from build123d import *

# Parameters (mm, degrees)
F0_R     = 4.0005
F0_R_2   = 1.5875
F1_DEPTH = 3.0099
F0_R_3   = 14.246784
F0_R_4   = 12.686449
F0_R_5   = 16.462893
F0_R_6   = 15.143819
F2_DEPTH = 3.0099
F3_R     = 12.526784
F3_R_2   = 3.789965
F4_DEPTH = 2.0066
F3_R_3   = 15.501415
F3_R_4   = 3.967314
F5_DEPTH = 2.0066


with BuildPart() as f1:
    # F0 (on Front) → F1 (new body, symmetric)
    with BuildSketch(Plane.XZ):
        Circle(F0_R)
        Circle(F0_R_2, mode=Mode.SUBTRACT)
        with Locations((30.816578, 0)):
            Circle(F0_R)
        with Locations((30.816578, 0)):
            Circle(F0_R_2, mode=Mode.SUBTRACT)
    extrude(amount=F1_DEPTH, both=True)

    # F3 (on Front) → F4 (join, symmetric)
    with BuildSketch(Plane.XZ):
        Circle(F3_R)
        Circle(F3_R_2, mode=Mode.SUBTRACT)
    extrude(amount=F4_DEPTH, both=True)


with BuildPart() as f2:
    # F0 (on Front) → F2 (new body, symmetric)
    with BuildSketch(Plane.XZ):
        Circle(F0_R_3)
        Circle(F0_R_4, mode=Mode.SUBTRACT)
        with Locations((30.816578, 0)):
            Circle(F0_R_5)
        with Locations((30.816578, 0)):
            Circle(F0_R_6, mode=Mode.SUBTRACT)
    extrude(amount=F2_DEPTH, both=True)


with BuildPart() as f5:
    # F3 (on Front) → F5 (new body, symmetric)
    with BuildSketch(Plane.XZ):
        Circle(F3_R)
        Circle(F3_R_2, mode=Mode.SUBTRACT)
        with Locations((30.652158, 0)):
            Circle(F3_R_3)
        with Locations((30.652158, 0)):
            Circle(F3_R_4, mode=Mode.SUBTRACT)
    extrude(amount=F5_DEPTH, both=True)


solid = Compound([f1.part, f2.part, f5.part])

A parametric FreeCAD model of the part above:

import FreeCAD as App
import Part
import Sketcher
from FreeCAD import Vector
Q = App.Units.Quantity

doc = App.newDocument("Part")
body = doc.addObject("PartDesign::Body", "Body")
body.AllowCompound = True

sketch1 = body.newObject("Sketcher::SketchObject", "Sketch")
sketch1.AttachmentSupport = (doc.getObject("XZ_Plane"), [""])
sketch1.MapMode = "FlatFace"
sketch1.addGeometry([
    Part.Circle(Vector(0, 0, 0), Vector(0, 0, 1), 4),
    Part.Circle(Vector(0, 0, 0), Vector(0, 0, 1), 1.6),
    Part.Circle(Vector(30.8, 0, 0), Vector(0, 0, 1), 4),
    Part.Circle(Vector(30.8, 0, 0), Vector(0, 0, 1), 1.6),
], False)
sketch1.addConstraint([
    Sketcher.Constraint("Coincident", 0, 3, -1, 1),
    Sketcher.Constraint("Coincident", 1, 3, -1, 1),
    Sketcher.Constraint("Coincident", 3, 3, 2, 3),
    Sketcher.Constraint("Equal", 0, 2),
    Sketcher.Constraint("Equal", 1, 3),
    Sketcher.Constraint("PointOnObject", 2, 3, -1),
    Sketcher.Constraint("Diameter", 0, Q("0.315 in")),
    Sketcher.Constraint("Diameter", 1, Q("0.125 in")),
    Sketcher.Constraint("DistanceX", -1, 1, 2, 3, 30.816578),
])
pad1 = body.newObject("PartDesign::Pad", "Pad")
pad1.Profile = sketch1
pad1.Length = Q("0.237 in")
pad1.Midplane = True

sketch2 = body.newObject("Sketcher::SketchObject", "Sketch001")
sketch2.AttachmentSupport = (doc.getObject("XZ_Plane"), [""])
sketch2.MapMode = "FlatFace"
sketch2.addGeometry([
    Part.Circle(Vector(0, 0, 0), Vector(0, 0, 1), 12.5),
    Part.Circle(Vector(0, 0, 0), Vector(0, 0, 1), 3.8),
], False)
sketch2.addConstraint([
    Sketcher.Constraint("Coincident", 0, 3, -1, 1),
    Sketcher.Constraint("Coincident", 1, 3, -1, 1),
    Sketcher.Constraint("Diameter", 1, 7.57993),
    Sketcher.Constraint("Diameter", 0, 25.053568),
])
pad2 = body.newObject("PartDesign::Pad", "Pad001")
pad2.Profile = sketch2
pad2.Length = Q("0.158 in")
pad2.Midplane = True
body2 = doc.addObject("PartDesign::Body", "Body001")
body2.AllowCompound = True

sketch3 = body2.newObject("Sketcher::SketchObject", "Sketch002")
sketch3.AttachmentSupport = (doc.getObject("XZ_Plane001"), [""])
sketch3.MapMode = "FlatFace"
sketch3.addGeometry([
    Part.Circle(Vector(0, 0, 0), Vector(0, 0, 1), 14),
    Part.Circle(Vector(0, 0, 0), Vector(0, 0, 1), 13),
    Part.Circle(Vector(31, 0, 0), Vector(0, 0, 1), 16),
    Part.Circle(Vector(31, 0, 0), Vector(0, 0, 1), 15),
], False)
sketch3.addConstraint([
    Sketcher.Constraint("Coincident", 0, 3, -1, 1),
    Sketcher.Constraint("Coincident", 1, 3, -1, 1),
    Sketcher.Constraint("Coincident", 3, 3, 2, 3),
    Sketcher.Constraint("PointOnObject", 2, 3, -1),
    Sketcher.Constraint("Diameter", 0, 28.493568),
    Sketcher.Constraint("Diameter", 3, 30.287638),
    Sketcher.Constraint("Diameter", 1, 25.372898),
    Sketcher.Constraint("Diameter", 2, 32.925786),
    Sketcher.Constraint("DistanceX", -1, 1, 2, 3, 30.816578),
])
pad3 = body2.newObject("PartDesign::Pad", "Pad002")
pad3.Profile = sketch3
pad3.Length = Q("0.237 in")
pad3.Midplane = True
body3 = doc.addObject("PartDesign::Body", "Body002")
body3.AllowCompound = True

sketch4 = body3.newObject("Sketcher::SketchObject", "Sketch003")
sketch4.AttachmentSupport = (doc.getObject("XZ_Plane002"), [""])
sketch4.MapMode = "FlatFace"
sketch4.addGeometry([
    Part.Circle(Vector(0, 0, 0), Vector(0, 0, 1), 12.5),
    Part.Circle(Vector(0, 0, 0), Vector(0, 0, 1), 3.8),
    Part.Circle(Vector(30.7, 0, 0), Vector(0, 0, 1), 15.5),
    Part.Circle(Vector(30.7, 0, 0), Vector(0, 0, 1), 4),
], False)
sketch4.addConstraint([
    Sketcher.Constraint("Coincident", 0, 3, -1, 1),
    Sketcher.Constraint("Coincident", 1, 3, -1, 1),
    Sketcher.Constraint("Coincident", 3, 3, 2, 3),
    Sketcher.Constraint("PointOnObject", 2, 3, -1),
    Sketcher.Constraint("Diameter", 1, 7.57993),
    Sketcher.Constraint("Diameter", 2, 31.00283),
    Sketcher.Constraint("Diameter", 0, 25.053568),
    Sketcher.Constraint("Diameter", 3, 7.934628),
    Sketcher.Constraint("DistanceX", -1, 1, 2, 3, 30.652158),
])
pad4 = body3.newObject("PartDesign::Pad", "Pad003")
pad4.Profile = sketch4
pad4.Length = Q("0.158 in")
pad4.Midplane = True

doc.recompute()
